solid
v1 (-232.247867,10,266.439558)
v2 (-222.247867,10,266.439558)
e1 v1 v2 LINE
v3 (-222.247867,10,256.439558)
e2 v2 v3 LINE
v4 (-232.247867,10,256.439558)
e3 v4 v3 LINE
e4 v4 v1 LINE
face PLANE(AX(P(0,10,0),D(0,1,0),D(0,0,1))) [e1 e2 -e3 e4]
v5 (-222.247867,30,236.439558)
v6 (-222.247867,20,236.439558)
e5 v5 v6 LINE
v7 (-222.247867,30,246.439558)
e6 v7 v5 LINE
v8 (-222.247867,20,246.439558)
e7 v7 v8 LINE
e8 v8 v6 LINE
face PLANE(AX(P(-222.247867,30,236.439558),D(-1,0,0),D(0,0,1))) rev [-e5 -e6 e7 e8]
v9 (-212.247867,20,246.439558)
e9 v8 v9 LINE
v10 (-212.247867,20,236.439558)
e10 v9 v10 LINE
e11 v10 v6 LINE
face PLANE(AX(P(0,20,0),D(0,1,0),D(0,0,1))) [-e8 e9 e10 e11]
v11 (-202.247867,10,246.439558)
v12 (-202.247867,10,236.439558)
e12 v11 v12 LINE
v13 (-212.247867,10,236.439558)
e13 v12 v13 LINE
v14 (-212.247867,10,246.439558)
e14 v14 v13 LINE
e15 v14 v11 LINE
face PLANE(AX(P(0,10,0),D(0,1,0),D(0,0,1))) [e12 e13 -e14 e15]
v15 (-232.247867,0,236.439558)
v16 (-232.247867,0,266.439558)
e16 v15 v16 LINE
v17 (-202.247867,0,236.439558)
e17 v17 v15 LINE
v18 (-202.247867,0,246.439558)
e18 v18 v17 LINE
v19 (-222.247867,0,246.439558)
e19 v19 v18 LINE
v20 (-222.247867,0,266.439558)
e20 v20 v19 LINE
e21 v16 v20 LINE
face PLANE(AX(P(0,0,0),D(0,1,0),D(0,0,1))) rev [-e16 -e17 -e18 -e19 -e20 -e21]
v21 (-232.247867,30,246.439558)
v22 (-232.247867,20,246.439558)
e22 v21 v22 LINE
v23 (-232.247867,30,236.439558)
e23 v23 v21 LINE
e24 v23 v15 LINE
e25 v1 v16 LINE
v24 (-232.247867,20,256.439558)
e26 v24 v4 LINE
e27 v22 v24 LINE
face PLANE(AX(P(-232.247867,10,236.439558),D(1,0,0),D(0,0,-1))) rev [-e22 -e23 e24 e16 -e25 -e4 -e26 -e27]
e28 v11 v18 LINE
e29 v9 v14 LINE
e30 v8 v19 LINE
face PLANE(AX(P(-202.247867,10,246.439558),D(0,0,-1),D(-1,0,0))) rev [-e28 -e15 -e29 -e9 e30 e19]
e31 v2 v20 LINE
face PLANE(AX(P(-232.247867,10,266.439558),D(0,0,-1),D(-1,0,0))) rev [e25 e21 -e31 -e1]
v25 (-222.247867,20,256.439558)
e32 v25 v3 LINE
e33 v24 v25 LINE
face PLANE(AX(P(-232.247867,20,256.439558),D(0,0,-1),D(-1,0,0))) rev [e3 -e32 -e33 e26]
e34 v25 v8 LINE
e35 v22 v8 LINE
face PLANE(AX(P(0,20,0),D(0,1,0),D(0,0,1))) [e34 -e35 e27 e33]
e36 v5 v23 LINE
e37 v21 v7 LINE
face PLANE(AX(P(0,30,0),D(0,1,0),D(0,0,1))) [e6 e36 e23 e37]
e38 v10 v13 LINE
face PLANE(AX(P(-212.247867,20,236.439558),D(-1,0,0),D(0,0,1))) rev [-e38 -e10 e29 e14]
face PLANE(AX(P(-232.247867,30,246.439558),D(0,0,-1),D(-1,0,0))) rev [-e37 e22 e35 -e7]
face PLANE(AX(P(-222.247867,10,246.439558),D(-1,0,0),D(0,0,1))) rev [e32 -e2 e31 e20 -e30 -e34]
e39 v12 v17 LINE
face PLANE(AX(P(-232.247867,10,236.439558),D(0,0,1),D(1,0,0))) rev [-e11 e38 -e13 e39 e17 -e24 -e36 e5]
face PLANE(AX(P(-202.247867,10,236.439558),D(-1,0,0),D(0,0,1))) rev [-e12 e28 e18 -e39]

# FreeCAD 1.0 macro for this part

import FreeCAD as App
import Part
import Sketcher
from FreeCAD import Vector

doc = App.newDocument("Part")
body = doc.addObject("PartDesign::Body", "Body")

# Sketch on XZ plane
sketch1 = body.newObject("Sketcher::SketchObject", "Sketch")
sketch1.AttachmentSupport = (doc.getObject("XZ_Plane"), [""])
sketch1.MapMode = "FlatFace"
sketch1.addGeometry([
    Part.LineSegment(Vector(-202.247867, 236.439558, 0), Vector(-232.247867, 236.439558, 0)),  # 0
    Part.LineSegment(Vector(-232.247867, 236.439558, 0), Vector(-232.247867, 266.439558, 0)),  # 1
    Part.LineSegment(Vector(-232.247867, 266.439558, 0), Vector(-222.247867, 266.439558, 0)),  # 2
    Part.LineSegment(Vector(-222.247867, 266.439558, 0), Vector(-222.247867, 246.439558, 0)),  # 3
    Part.LineSegment(Vector(-222.247867, 246.439558, 0), Vector(-202.247867, 246.439558, 0)),  # 4
    Part.LineSegment(Vector(-202.247867, 246.439558, 0), Vector(-202.247867, 236.439558, 0)),  # 5
], False)
sketch1.addConstraint([
    Sketcher.Constraint("Coincident", 0, 2, 1, 1),
    Sketcher.Constraint("Coincident", 1, 2, 2, 1),
    Sketcher.Constraint("Coincident", 2, 2, 3, 1),
    Sketcher.Constraint("Coincident", 3, 2, 4, 1),
    Sketcher.Constraint("Coincident", 4, 2, 5, 1),
    Sketcher.Constraint("Coincident", 5, 2, 0, 1),
    Sketcher.Constraint("Horizontal", 0),
    Sketcher.Constraint("Vertical", 1),
    Sketcher.Constraint("Horizontal", 2),
    Sketcher.Constraint("Vertical", 3),
    Sketcher.Constraint("Horizontal", 4),
    Sketcher.Constraint("Vertical", 5),
    Sketcher.Constraint("Equal", 0, 1),
    Sketcher.Constraint("Equal", 4, 3),
    Sketcher.Constraint("DistanceX", 0, 2, 0, 1, 30.0),
    Sketcher.Constraint("DistanceX", 2, 1, 2, 2, 10.0),
    Sketcher.Constraint("DistanceY", -1, 1, 0, 2, 236.439558),
    Sketcher.Constraint("DistanceX", 0, 2, -1, 1, 232.247867),
])
pad1 = body.newObject("PartDesign::Pad", "Pad")
pad1.Profile = sketch1
pad1.Length = 10
pad1.Reversed = True

# Sketch on XZ plane
sketch2 = body.newObject("Sketcher::SketchObject", "Sketch001")
sketch2.AttachmentSupport = (doc.getObject("XZ_Plane"), [""])
sketch2.MapMode = "FlatFace"
sketch2.AttachmentOffset = App.Placement(Vector(0, 0, -10), App.Rotation())
sketch2.addGeometry([
    Part.LineSegment(Vector(-212.247867, 236.439558, 0), Vector(-232.247867, 236.439558, 0)),  # 0
    Part.LineSegment(Vector(-232.247867, 236.439558, 0), Vector(-232.247867, 256.439558, 0)),  # 1
    Part.LineSegment(Vector(-232.247867, 256.439558, 0), Vector(-222.247867, 256.439558, 0)),  # 2
    Part.LineSegment(Vector(-222.247867, 256.439558, 0), Vector(-222.247867, 246.439558, 0)),  # 3
    Part.LineSegment(Vector(-222.247867, 246.439558, 0), Vector(-212.247867, 246.439558, 0)),  # 4
    Part.LineSegment(Vector(-212.247867, 246.439558, 0), Vector(-212.247867, 236.439558, 0)),  # 5
], False)
sketch2.addConstraint([
    Sketcher.Constraint("Coincident", 0, 2, 1, 1),
    Sketcher.Constraint("Coincident", 1, 2, 2, 1),
    Sketcher.Constraint("Coincident", 2, 2, 3, 1),
    Sketcher.Constraint("Coincident", 3, 2, 4, 1),
    Sketcher.Constraint("Coincident", 4, 2, 5, 1),
    Sketcher.Constraint("Coincident", 5, 2, 0, 1),
    Sketcher.Constraint("Horizontal", 0),
    Sketcher.Constraint("Vertical", 1),
    Sketcher.Constraint("Horizontal", 2),
    Sketcher.Constraint("Vertical", 3),
    Sketcher.Constraint("Horizontal", 4),
    Sketcher.Constraint("Vertical", 5),
    Sketcher.Constraint("Equal", 2, 4),
    Sketcher.Constraint("Equal", 0, 1),
    Sketcher.Constraint("Equal", 4, 3),
    Sketcher.Constraint("DistanceX", 0, 2, 0, 1, 20.0),
    Sketcher.Constraint("DistanceY", -1, 1, 0, 2, 236.439558),
    Sketcher.Constraint("DistanceX", 0, 2, -1, 1, 232.247867),
])
pad2 = body.newObject("PartDesign::Pad", "Pad001")
pad2.Profile = sketch2
pad2.Length = 10
pad2.Reversed = True

# Sketch on XZ plane
sketch3 = body.newObject("Sketcher::SketchObject", "Sketch002")
sketch3.AttachmentSupport = (doc.getObject("XZ_Plane"), [""])
sketch3.MapMode = "FlatFace"
sketch3.AttachmentOffset = App.Placement(Vector(0, 0, -20), App.Rotation())
sketch3.addGeometry([
    Part.LineSegment(Vector(-232.247867, 236.439558, 0), Vector(-232.247867, 246.439558, 0)),
    Part.LineSegment(Vector(-232.247867, 246.439558, 0), Vector(-222.247867, 246.439558, 0)),
    Part.LineSegment(Vector(-222.247867, 246.439558, 0), Vector(-222.247867, 236.439558, 0)),
    Part.LineSegment(Vector(-222.247867, 236.439558, 0), Vector(-232.247867, 236.439558, 0)),
], False)
sketch3.addConstraint([
    Sketcher.Constraint("Coincident", 0, 2, 1, 1),
    Sketcher.Constraint("Coincident", 1, 2, 2, 1),
    Sketcher.Constraint("Coincident", 2, 2, 3, 1),
    Sketcher.Constraint("Coincident", 3, 2, 0, 1),
    Sketcher.Constraint("Vertical", 0),
    Sketcher.Constraint("Horizontal", 1),
    Sketcher.Constraint("Vertical", 2),
    Sketcher.Constraint("Horizontal", 3),
    Sketcher.Constraint("Equal", 3, 0),
    Sketcher.Constraint("DistanceX", 1, 1, 1, 2, 10.0),
    Sketcher.Constraint("DistanceY", -1, 1, 0, 2, 246.439558),
    Sketcher.Constraint("DistanceX", 0, 2, -1, 1, 232.247867),
])
pad3 = body.newObject("PartDesign::Pad", "Pad002")
pad3.Profile = sketch3
pad3.Length = 10
pad3.Reversed = True

doc.recompute()
